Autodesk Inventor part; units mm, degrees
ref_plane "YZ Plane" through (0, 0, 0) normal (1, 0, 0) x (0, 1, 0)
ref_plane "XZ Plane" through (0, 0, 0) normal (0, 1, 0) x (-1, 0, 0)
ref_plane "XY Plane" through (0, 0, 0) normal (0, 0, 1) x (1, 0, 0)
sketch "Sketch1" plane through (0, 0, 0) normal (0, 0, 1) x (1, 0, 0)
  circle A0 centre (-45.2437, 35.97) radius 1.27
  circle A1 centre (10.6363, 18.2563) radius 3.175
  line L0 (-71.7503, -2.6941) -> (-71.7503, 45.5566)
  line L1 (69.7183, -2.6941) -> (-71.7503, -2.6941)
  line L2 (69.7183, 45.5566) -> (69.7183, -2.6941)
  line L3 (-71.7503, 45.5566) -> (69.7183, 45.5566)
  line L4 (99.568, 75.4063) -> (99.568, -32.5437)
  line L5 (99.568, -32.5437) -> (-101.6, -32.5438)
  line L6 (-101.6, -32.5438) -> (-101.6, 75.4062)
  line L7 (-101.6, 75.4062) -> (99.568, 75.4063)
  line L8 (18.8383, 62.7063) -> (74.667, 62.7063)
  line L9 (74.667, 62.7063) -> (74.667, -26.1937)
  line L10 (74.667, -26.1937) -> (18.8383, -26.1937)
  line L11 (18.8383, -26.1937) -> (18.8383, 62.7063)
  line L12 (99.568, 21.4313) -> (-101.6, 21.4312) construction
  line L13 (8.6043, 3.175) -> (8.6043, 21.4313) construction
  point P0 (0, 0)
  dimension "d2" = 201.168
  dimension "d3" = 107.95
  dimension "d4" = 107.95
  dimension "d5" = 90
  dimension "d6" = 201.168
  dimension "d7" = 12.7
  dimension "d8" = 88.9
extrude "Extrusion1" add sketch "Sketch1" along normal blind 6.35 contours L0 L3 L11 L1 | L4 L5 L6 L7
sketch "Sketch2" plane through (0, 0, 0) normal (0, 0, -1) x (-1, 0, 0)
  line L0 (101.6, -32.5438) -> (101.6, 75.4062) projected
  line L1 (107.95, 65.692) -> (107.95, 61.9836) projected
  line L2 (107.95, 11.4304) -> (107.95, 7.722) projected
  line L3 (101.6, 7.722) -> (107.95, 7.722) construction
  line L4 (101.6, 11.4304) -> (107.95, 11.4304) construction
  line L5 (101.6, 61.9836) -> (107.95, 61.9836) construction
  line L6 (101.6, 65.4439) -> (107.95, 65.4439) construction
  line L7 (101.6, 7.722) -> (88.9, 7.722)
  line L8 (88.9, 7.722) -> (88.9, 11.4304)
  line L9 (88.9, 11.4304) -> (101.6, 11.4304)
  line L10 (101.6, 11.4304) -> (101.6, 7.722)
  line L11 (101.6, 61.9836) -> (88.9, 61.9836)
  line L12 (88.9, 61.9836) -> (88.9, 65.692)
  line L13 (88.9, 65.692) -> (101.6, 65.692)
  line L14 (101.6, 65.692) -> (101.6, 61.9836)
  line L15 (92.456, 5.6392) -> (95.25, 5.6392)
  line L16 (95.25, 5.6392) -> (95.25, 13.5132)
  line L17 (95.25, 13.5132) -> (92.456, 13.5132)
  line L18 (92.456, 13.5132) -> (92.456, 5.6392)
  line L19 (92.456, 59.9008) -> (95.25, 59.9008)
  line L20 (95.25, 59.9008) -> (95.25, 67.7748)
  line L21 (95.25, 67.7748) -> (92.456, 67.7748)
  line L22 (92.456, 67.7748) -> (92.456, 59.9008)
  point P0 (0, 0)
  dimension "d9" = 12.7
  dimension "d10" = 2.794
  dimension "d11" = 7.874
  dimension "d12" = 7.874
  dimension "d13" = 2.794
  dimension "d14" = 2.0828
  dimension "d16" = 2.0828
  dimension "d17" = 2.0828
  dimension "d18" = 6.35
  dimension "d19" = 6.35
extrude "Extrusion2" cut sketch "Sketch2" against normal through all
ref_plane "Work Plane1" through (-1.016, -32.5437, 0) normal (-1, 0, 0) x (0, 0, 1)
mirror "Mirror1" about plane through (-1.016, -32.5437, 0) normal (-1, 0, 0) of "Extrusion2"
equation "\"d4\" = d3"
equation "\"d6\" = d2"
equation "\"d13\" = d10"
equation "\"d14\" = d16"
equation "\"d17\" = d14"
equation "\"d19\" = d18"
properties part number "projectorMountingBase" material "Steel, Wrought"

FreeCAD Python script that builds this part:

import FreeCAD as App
import Part
import Sketcher
Q = App.Units.Quantity

doc = App.newDocument("Part")
params = doc.addObject("Spreadsheet::Sheet", "Params")
for row, (alias, value) in enumerate([
    ("sketch1_height", "3.5 in"),
    ("sketch1_diameter", "0.1 in"),
    ("sketch1_width", "7.92 in"),
    ("sketch1_height2", "4.25 in"),
    ("sketch1_diameter2", "0.25 in"),
    ("pad1_length", "0.25 in"),
    ("sketch2_width", "0.25 in"),
    ("sketch2_width2", "0.11 in"),
    ("sketch2_height", "0.082 in"),
    ("sketch2_height2", "0.146 in"),
], start=1):
    params.set(f"A{row}", alias)
    params.set(f"B{row}", "=" + value)
    params.setAlias(f"B{row}", alias)

body = doc.addObject("PartDesign::Body", "Body")

# Sketch on XY plane
sketch1 = body.newObject("Sketcher::SketchObject", "Sketch")
sketch1.AttachmentSupport = (doc.getObject("XY_Plane"), [""])
sketch1.MapMode = "FlatFace"
sketch1.addGeometry(Part.LineSegment(App.Vector(99.6, -32.5, 0), App.Vector(99.6, 75.4, 0)), False)
sketch1.addGeometry(Part.LineSegment(App.Vector(99.6, 75.4, 0), App.Vector(-101.6, 75.4, 0)), False)
sketch1.addGeometry(Part.LineSegment(App.Vector(-101.6, 75.4, 0), App.Vector(-101.6, -32.5, 0)), False)
sketch1.addGeometry(Part.LineSegment(App.Vector(-101.6, -32.5, 0), App.Vector(99.6, -32.5, 0)), False)
sketch1.addGeometry(Part.LineSegment(App.Vector(18.8, 62.7, 0), App.Vector(74.7, 62.7, 0)), False)
sketch1.addGeometry(Part.LineSegment(App.Vector(74.7, 62.7, 0), App.Vector(74.7, -26.2, 0)), False)
sketch1.addGeometry(Part.LineSegment(App.Vector(74.7, -26.2, 0), App.Vector(18.8, -26.2, 0)), False)
sketch1.addGeometry(Part.LineSegment(App.Vector(18.8, -26.2, 0), App.Vector(18.8, 62.7, 0)), False)
sketch1.addGeometry(Part.Circle(App.Vector(10.6, 18.3, 0), App.Vector(0, 0, 1), 3.2), False)
sketch1.addGeometry(Part.Circle(App.Vector(-45.2, 36, 0), App.Vector(0, 0, 1), 1.3), False)
sketch1.addConstraint(Sketcher.Constraint("Coincident", 0, 2, 1, 1))
sketch1.addConstraint(Sketcher.Constraint("Coincident", 1, 2, 2, 1))
sketch1.addConstraint(Sketcher.Constraint("Coincident", 2, 2, 3, 1))
sketch1.addConstraint(Sketcher.Constraint("Coincident", 3, 2, 0, 1))
sketch1.addConstraint(Sketcher.Constraint("Coincident", 4, 2, 5, 1))
sketch1.addConstraint(Sketcher.Constraint("Coincident", 5, 2, 6, 1))
sketch1.addConstraint(Sketcher.Constraint("Coincident", 6, 2, 7, 1))
sketch1.addConstraint(Sketcher.Constraint("Coincident", 7, 2, 4, 1))
sketch1.addConstraint(Sketcher.Constraint("Vertical", 0))
sketch1.addConstraint(Sketcher.Constraint("Horizontal", 1))
sketch1.addConstraint(Sketcher.Constraint("Vertical", 2))
sketch1.addConstraint(Sketcher.Constraint("Horizontal", 3))
sketch1.addConstraint(Sketcher.Constraint("Horizontal", 4))
sketch1.addConstraint(Sketcher.Constraint("Vertical", 5))
sketch1.addConstraint(Sketcher.Constraint("Horizontal", 6))
sketch1.addConstraint(Sketcher.Constraint("Vertical", 7))
sketch1.addConstraint(Sketcher.Constraint("DistanceY", 5, 2, 5, 1, Q("3.5 in")))
sketch1.addConstraint(Sketcher.Constraint("Diameter", 9, Q("0.1 in")))
sketch1.addConstraint(Sketcher.Constraint("DistanceX", 1, 2, 1, 1, Q("7.92 in")))
sketch1.addConstraint(Sketcher.Constraint("DistanceY", 0, 1, 0, 2, Q("4.25 in")))
sketch1.addConstraint(Sketcher.Constraint("DistanceY", 4, 2, 0, 2, Q("0.5 in")))
sketch1.addConstraint(Sketcher.Constraint("Diameter", 8, Q("0.25 in")))
sketch1.addConstraint(Sketcher.Constraint("DistanceX", 1, 2, -1, 1, Q("4 in")))
sketch1.addConstraint(Sketcher.Constraint("DistanceY", 2, 2, 8, 3, Q("2 in")))
sketch1.addConstraint(Sketcher.Constraint("DistanceX", 9, 3, 8, 3, Q("2.2 in")))
sketch1.addConstraint(Sketcher.Constraint("DistanceY", -1, 1, 8, 3, Q("0.718752 in")))
sketch1.addConstraint(Sketcher.Constraint("DistanceX", 9, 3, -1, 1, Q("1.781248 in")))
sketch1.addConstraint(Sketcher.Constraint("DistanceX", 4, 1, 4, 2, 55.8287))
sketch1.addConstraint(Sketcher.Constraint("DistanceY", 8, 3, 9, 3, Q("0.6974 in")))
sketch1.addConstraint(Sketcher.Constraint("DistanceX", 8, 3, 4, 2, Q("2.5209 in")))
sketch1.setExpression("Constraints[16]", "Params.sketch1_height")
sketch1.setExpression("Constraints[17]", "Params.sketch1_diameter")
sketch1.setExpression("Constraints[18]", "Params.sketch1_width")
sketch1.setExpression("Constraints[19]", "Params.sketch1_height2")
sketch1.setExpression("Constraints[21]", "Params.sketch1_diameter2")
pad1 = body.newObject("PartDesign::Pad", "Pad")
pad1.Profile = sketch1
pad1.setExpression("Length", "Params.pad1_length")

# Sketch on XY plane
sketch2 = body.newObject("Sketcher::SketchObject", "Sketch001")
sketch2.AttachmentSupport = (doc.getObject("XY_Plane"), [""])
sketch2.MapMode = "FlatFace"
sketch2.addGeometry(Part.LineSegment(App.Vector(-95.2, 7.7, 0), App.Vector(-101.6, 7.7, 0)), False)
sketch2.addGeometry(Part.LineSegment(App.Vector(-101.6, 7.7, 0), App.Vector(-101.6, 11.4, 0)), False)
sketch2.addGeometry(Part.LineSegment(App.Vector(-101.6, 11.4, 0), App.Vector(-95.2, 11.4, 0)), False)
sketch2.addGeometry(Part.LineSegment(App.Vector(-95.2, 11.4, 0), App.Vector(-95.2, 13.5, 0)), False)
sketch2.addGeometry(Part.LineSegment(App.Vector(-95.2, 13.5, 0), App.Vector(-92.5, 13.5, 0)), False)
sketch2.addGeometry(Part.LineSegment(App.Vector(-92.5, 13.5, 0), App.Vector(-92.5, 11.4, 0)), False)
sketch2.addGeometry(Part.LineSegment(App.Vector(-92.5, 11.4, 0), App.Vector(-88.9, 11.4, 0)), False)
sketch2.addGeometry(Part.LineSegment(App.Vector(-88.9, 11.4, 0), App.Vector(-88.9, 7.7, 0)), False)
sketch2.addGeometry(Part.LineSegment(App.Vector(-88.9, 7.7, 0), App.Vector(-92.5, 7.7, 0)), False)
sketch2.addGeometry(Part.LineSegment(App.Vector(-92.5, 7.7, 0), App.Vector(-92.5, 5.6, 0)), False)
sketch2.addGeometry(Part.LineSegment(App.Vector(-92.5, 5.6, 0), App.Vector(-95.2, 5.6, 0)), False)
sketch2.addGeometry(Part.LineSegment(App.Vector(-95.2, 5.6, 0), App.Vector(-95.2, 7.7, 0)), False)
sketch2.addGeometry(Part.LineSegment(App.Vector(-95.2, 62, 0), App.Vector(-101.6, 62, 0)), False)
sketch2.addGeometry(Part.LineSegment(App.Vector(-101.6, 62, 0), App.Vector(-101.6, 65.7, 0)), False)
sketch2.addGeometry(Part.LineSegment(App.Vector(-101.6, 65.7, 0), App.Vector(-95.2, 65.7, 0)), False)
sketch2.addGeometry(Part.LineSegment(App.Vector(-95.2, 65.7, 0), App.Vector(-95.2, 67.8, 0)), False)
sketch2.addGeometry(Part.LineSegment(App.Vector(-95.2, 67.8, 0), App.Vector(-92.5, 67.8, 0)), False)
sketch2.addGeometry(Part.LineSegment(App.Vector(-92.5, 67.8, 0), App.Vector(-92.5, 65.7, 0)), False)
sketch2.addGeometry(Part.LineSegment(App.Vector(-92.5, 65.7, 0), App.Vector(-88.9, 65.7, 0)), False)
sketch2.addGeometry(Part.LineSegment(App.Vector(-88.9, 65.7, 0), App.Vector(-88.9, 62, 0)), False)
sketch2.addGeometry(Part.LineSegment(App.Vector(-88.9, 62, 0), App.Vector(-92.5, 62, 0)), False)
sketch2.addGeometry(Part.LineSegment(App.Vector(-92.5, 62, 0), App.Vector(-92.5, 59.9, 0)), False)
sketch2.addGeometry(Part.LineSegment(App.Vector(-92.5, 59.9, 0), App.Vector(-95.2, 59.9, 0)), False)
sketch2.addGeometry(Part.LineSegment(App.Vector(-95.2, 59.9, 0), App.Vector(-95.2, 62, 0)), False)
sketch2.addConstraint(Sketcher.Constraint("Coincident", 0, 2, 1, 1))
sketch2.addConstraint(Sketcher.Constraint("Coincident", 1, 2, 2, 1))
sketch2.addConstraint(Sketcher.Constraint("Coincident", 2, 2, 3, 1))
sketch2.addConstraint(Sketcher.Constraint("Coincident", 3, 2, 4, 1))
sketch2.addConstraint(Sketcher.Constraint("Coincident", 4, 2, 5, 1))
sketch2.addConstraint(Sketcher.Constraint("Coincident", 5, 2, 6, 1))
sketch2.addConstraint(Sketcher.Constraint("Coincident", 6, 2, 7, 1))
sketch2.addConstraint(Sketcher.Constraint("Coincident", 7, 2, 8, 1))
sketch2.addConstraint(Sketcher.Constraint("Coincident", 8, 2, 9, 1))
sketch2.addConstraint(Sketcher.Constraint("Coincident", 9, 2, 10, 1))
sketch2.addConstraint(Sketcher.Constraint("Coincident", 10, 2, 11, 1))
sketch2.addConstraint(Sketcher.Constraint("Coincident", 11, 2, 0, 1))
sketch2.addConstraint(Sketcher.Constraint("Coincident", 12, 2, 13, 1))
sketch2.addConstraint(Sketcher.Constraint("Coincident", 13, 2, 14, 1))
sketch2.addConstraint(Sketcher.Constraint("Coincident", 14, 2, 15, 1))
sketch2.addConstraint(Sketcher.Constraint("Coincident", 15, 2, 16, 1))
sketch2.addConstraint(Sketcher.Constraint("Coincident", 16, 2, 17, 1))
sketch2.addConstraint(Sketcher.Constraint("Coincident", 17, 2, 18, 1))
sketch2.addConstraint(Sketcher.Constraint("Coincident", 18, 2, 19, 1))
sketch2.addConstraint(Sketcher.Constraint("Coincident", 19, 2, 20, 1))
sketch2.addConstraint(Sketcher.Constraint("Coincident", 20, 2, 21, 1))
sketch2.addConstraint(Sketcher.Constraint("Coincident", 21, 2, 22, 1))
sketch2.addConstraint(Sketcher.Constraint("Coincident", 22, 2, 23, 1))
sketch2.addConstraint(Sketcher.Constraint("Coincident", 23, 2, 12, 1))
sketch2.addConstraint(Sketcher.Constraint("Horizontal", 0))
sketch2.addConstraint(Sketcher.Constraint("Vertical", 1))
sketch2.addConstraint(Sketcher.Constraint("Horizontal", 2))
sketch2.addConstraint(Sketcher.Constraint("Vertical", 3))
sketch2.addConstraint(Sketcher.Constraint("Horizontal", 4))
sketch2.addConstraint(Sketcher.Constraint("Vertical", 5))
sketch2.addConstraint(Sketcher.Constraint("Horizontal", 6))
sketch2.addConstraint(Sketcher.Constraint("Vertical", 7))
sketch2.addConstraint(Sketcher.Constraint("Horizontal", 8))
sketch2.addConstraint(Sketcher.Constraint("Vertical", 9))
sketch2.addConstraint(Sketcher.Constraint("Horizontal", 10))
sketch2.addConstraint(Sketcher.Constraint("Vertical", 11))
sketch2.addConstraint(Sketcher.Constraint("Horizontal", 12))
sketch2.addConstraint(Sketcher.Constraint("Vertical", 13))
sketch2.addConstraint(Sketcher.Constraint("Horizontal", 14))
sketch2.addConstraint(Sketcher.Constraint("Vertical", 15))
sketch2.addConstraint(Sketcher.Constraint("Horizontal", 16))
sketch2.addConstraint(Sketcher.Constraint("Vertical", 17))
sketch2.addConstraint(Sketcher.Constraint("Horizontal", 18))
sketch2.addConstraint(Sketcher.Constraint("Vertical", 19))
sketch2.addConstraint(Sketcher.Constraint("Horizontal", 20))
sketch2.addConstraint(Sketcher.Constraint("Vertical", 21))
sketch2.addConstraint(Sketcher.Constraint("Horizontal", 22))
sketch2.addConstraint(Sketcher.Constraint("Vertical", 23))
sketch2.addConstraint(Sketcher.Constraint("Horizontal", 2, 2, 5, 2))
sketch2.addConstraint(Sketcher.Constraint("Horizontal", 0, 2, 7, 2))
sketch2.addConstraint(Sketcher.Constraint("Horizontal", 14, 2, 17, 2))
sketch2.addConstraint(Sketcher.Constraint("Horizontal", 12, 2, 19, 2))
sketch2.addConstraint(Sketcher.Constraint("Vertical", 5, 2, 8, 2))
sketch2.addConstraint(Sketcher.Constraint("Vertical", 3, 2, 10, 2))
sketch2.addConstraint(Sketcher.Constraint("Vertical", 1, 2, 12, 2))
sketch2.addConstraint(Sketcher.Constraint("Vertical", 11, 2, 14, 2))
sketch2.addConstraint(Sketcher.Constraint("Vertical", 9, 2, 16, 2))
sketch2.addConstraint(Sketcher.Constraint("Vertical", 7, 2, 18, 2))
sketch2.addConstraint(Sketcher.Constraint("Vertical", 17, 2, 20, 2))
sketch2.addConstraint(Sketcher.Constraint("Vertical", 15, 2, 22, 2))
sketch2.addConstraint(Sketcher.Constraint("Equal", 5, 9))
sketch2.addConstraint(Sketcher.Constraint("Equal", 7, 13))
sketch2.addConstraint(Sketcher.Constraint("Equal", 11, 15))
sketch2.addConstraint(Sketcher.Constraint("Equal", 17, 21))
sketch2.addConstraint(Sketcher.Constraint("DistanceX", 0, 2, 0, 1, Q("0.25 in")))
sketch2.addConstraint(Sketcher.Constraint("DistanceX", 4, 1, 4, 2, Q("0.11 in")))
sketch2.addConstraint(Sketcher.Constraint("DistanceX", 1, 2, 6, 2, Q("0.5 in")))
sketch2.addConstraint(Sketcher.Constraint("DistanceY", 3, 1, 3, 2, Q("0.082 in")))
sketch2.addConstraint(Sketcher.Constraint("DistanceX", 0, 2, -1, 1, Q("4 in")))
sketch2.addConstraint(Sketcher.Constraint("DistanceY", 1, 1, 1, 2, Q("0.146 in")))
sketch2.addConstraint(Sketcher.Constraint("DistanceY", -1, 1, 12, 2, Q("2.4403 in")))
sketch2.addConstraint(Sketcher.Constraint("DistanceY", -1, 1, 0, 2, 7.722))
sketch2.setExpression("Constraints[64]", "Params.sketch2_width")
sketch2.setExpression("Constraints[65]", "Params.sketch2_width2")
sketch2.setExpression("Constraints[67]", "Params.sketch2_height")
sketch2.setExpression("Constraints[69]", "Params.sketch2_height2")
pocket1 = body.newObject("PartDesign::Pocket", "Pocket")
pocket1.Profile = sketch2
pocket1.Type = "ThroughAll"
pocket1.Reversed = True
doc.recompute()

datumplane = body.newObject("PartDesign::Plane", "DatumPlane")
datumplane.AttachmentSupport = (doc.getObject("YZ_Plane"), [""])
datumplane.MapMode = "FlatFace"
datumplane.AttachmentOffset = App.Placement(App.Vector(0, 0, -0.04 * 25.4), App.Rotation())
mirrored = body.newObject("PartDesign::Mirrored", "Mirrored")
mirrored.Originals = [pocket1]
mirrored.MirrorPlane = (datumplane, [""])
body.Tip = mirrored

doc.recompute()
